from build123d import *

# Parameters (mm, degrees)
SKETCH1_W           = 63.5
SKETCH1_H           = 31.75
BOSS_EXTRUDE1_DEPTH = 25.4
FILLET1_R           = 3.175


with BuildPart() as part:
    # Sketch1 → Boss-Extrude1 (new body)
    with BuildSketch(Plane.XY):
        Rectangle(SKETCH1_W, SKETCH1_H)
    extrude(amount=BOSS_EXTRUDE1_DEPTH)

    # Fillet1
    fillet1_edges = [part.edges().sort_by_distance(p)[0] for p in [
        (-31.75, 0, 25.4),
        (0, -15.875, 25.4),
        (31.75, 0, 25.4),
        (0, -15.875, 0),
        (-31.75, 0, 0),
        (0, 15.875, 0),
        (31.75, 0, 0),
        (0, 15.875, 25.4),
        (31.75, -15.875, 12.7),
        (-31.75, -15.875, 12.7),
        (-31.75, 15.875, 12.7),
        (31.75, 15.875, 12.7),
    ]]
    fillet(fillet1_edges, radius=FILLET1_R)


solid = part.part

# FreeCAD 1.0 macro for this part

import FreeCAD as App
import Part
import Sketcher
from FreeCAD import Vector
Q = App.Units.Quantity

doc = App.newDocument("Part")
body = doc.addObject("PartDesign::Body", "Body")

sketch1 = doc.addObject("Sketcher::SketchObject", "Sketch")
body.addObject(sketch1)
sketch1.AttachmentSupport = (doc.XY_Plane, [""])
sketch1.MapMode = "FlatFace"
sketch1.addGeometry([
    Part.LineSegment(Vector(-31.75, 15.875, 0), Vector(-31.75, -15.875, 0)),
    Part.LineSegment(Vector(-31.75, -15.875, 0), Vector(31.75, -15.875, 0)),
    Part.LineSegment(Vector(31.75, -15.875, 0), Vector(31.75, 15.875, 0)),
    Part.LineSegment(Vector(31.75, 15.875, 0), Vector(-31.75, 15.875, 0)),
], False)
sketch1.addConstraint([
    Sketcher.Constraint("Coincident", 0, 2, 1, 1),
    Sketcher.Constraint("Coincident", 1, 2, 2, 1),
    Sketcher.Constraint("Coincident", 2, 2, 3, 1),
    Sketcher.Constraint("Coincident", 3, 2, 0, 1),
    Sketcher.Constraint("Vertical", 0),
    Sketcher.Constraint("Horizontal", 1),
    Sketcher.Constraint("Vertical", 2),
    Sketcher.Constraint("Horizontal", 3),
    Sketcher.Constraint("Symmetric", 0, 2, 2, 2, -1, 1),
    Sketcher.Constraint("DistanceX", 1, 1, 1, 2, Q("2.5 in")),
    Sketcher.Constraint("DistanceY", 0, 2, 0, 1, Q("1.25 in")),
])
pad1 = doc.addObject("PartDesign::Pad", "Pad")
body.addObject(pad1)
pad1.Profile = sketch1
pad1.Length = Q("1 in")
doc.recompute()

fillet = doc.addObject("PartDesign::Fillet", "Fillet")
body.addObject(fillet)
fillet.Base = (pad1, ["Edge1"])
fillet.UseAllEdges = True
fillet.Radius = Q("0.125 in")

doc.recompute()
